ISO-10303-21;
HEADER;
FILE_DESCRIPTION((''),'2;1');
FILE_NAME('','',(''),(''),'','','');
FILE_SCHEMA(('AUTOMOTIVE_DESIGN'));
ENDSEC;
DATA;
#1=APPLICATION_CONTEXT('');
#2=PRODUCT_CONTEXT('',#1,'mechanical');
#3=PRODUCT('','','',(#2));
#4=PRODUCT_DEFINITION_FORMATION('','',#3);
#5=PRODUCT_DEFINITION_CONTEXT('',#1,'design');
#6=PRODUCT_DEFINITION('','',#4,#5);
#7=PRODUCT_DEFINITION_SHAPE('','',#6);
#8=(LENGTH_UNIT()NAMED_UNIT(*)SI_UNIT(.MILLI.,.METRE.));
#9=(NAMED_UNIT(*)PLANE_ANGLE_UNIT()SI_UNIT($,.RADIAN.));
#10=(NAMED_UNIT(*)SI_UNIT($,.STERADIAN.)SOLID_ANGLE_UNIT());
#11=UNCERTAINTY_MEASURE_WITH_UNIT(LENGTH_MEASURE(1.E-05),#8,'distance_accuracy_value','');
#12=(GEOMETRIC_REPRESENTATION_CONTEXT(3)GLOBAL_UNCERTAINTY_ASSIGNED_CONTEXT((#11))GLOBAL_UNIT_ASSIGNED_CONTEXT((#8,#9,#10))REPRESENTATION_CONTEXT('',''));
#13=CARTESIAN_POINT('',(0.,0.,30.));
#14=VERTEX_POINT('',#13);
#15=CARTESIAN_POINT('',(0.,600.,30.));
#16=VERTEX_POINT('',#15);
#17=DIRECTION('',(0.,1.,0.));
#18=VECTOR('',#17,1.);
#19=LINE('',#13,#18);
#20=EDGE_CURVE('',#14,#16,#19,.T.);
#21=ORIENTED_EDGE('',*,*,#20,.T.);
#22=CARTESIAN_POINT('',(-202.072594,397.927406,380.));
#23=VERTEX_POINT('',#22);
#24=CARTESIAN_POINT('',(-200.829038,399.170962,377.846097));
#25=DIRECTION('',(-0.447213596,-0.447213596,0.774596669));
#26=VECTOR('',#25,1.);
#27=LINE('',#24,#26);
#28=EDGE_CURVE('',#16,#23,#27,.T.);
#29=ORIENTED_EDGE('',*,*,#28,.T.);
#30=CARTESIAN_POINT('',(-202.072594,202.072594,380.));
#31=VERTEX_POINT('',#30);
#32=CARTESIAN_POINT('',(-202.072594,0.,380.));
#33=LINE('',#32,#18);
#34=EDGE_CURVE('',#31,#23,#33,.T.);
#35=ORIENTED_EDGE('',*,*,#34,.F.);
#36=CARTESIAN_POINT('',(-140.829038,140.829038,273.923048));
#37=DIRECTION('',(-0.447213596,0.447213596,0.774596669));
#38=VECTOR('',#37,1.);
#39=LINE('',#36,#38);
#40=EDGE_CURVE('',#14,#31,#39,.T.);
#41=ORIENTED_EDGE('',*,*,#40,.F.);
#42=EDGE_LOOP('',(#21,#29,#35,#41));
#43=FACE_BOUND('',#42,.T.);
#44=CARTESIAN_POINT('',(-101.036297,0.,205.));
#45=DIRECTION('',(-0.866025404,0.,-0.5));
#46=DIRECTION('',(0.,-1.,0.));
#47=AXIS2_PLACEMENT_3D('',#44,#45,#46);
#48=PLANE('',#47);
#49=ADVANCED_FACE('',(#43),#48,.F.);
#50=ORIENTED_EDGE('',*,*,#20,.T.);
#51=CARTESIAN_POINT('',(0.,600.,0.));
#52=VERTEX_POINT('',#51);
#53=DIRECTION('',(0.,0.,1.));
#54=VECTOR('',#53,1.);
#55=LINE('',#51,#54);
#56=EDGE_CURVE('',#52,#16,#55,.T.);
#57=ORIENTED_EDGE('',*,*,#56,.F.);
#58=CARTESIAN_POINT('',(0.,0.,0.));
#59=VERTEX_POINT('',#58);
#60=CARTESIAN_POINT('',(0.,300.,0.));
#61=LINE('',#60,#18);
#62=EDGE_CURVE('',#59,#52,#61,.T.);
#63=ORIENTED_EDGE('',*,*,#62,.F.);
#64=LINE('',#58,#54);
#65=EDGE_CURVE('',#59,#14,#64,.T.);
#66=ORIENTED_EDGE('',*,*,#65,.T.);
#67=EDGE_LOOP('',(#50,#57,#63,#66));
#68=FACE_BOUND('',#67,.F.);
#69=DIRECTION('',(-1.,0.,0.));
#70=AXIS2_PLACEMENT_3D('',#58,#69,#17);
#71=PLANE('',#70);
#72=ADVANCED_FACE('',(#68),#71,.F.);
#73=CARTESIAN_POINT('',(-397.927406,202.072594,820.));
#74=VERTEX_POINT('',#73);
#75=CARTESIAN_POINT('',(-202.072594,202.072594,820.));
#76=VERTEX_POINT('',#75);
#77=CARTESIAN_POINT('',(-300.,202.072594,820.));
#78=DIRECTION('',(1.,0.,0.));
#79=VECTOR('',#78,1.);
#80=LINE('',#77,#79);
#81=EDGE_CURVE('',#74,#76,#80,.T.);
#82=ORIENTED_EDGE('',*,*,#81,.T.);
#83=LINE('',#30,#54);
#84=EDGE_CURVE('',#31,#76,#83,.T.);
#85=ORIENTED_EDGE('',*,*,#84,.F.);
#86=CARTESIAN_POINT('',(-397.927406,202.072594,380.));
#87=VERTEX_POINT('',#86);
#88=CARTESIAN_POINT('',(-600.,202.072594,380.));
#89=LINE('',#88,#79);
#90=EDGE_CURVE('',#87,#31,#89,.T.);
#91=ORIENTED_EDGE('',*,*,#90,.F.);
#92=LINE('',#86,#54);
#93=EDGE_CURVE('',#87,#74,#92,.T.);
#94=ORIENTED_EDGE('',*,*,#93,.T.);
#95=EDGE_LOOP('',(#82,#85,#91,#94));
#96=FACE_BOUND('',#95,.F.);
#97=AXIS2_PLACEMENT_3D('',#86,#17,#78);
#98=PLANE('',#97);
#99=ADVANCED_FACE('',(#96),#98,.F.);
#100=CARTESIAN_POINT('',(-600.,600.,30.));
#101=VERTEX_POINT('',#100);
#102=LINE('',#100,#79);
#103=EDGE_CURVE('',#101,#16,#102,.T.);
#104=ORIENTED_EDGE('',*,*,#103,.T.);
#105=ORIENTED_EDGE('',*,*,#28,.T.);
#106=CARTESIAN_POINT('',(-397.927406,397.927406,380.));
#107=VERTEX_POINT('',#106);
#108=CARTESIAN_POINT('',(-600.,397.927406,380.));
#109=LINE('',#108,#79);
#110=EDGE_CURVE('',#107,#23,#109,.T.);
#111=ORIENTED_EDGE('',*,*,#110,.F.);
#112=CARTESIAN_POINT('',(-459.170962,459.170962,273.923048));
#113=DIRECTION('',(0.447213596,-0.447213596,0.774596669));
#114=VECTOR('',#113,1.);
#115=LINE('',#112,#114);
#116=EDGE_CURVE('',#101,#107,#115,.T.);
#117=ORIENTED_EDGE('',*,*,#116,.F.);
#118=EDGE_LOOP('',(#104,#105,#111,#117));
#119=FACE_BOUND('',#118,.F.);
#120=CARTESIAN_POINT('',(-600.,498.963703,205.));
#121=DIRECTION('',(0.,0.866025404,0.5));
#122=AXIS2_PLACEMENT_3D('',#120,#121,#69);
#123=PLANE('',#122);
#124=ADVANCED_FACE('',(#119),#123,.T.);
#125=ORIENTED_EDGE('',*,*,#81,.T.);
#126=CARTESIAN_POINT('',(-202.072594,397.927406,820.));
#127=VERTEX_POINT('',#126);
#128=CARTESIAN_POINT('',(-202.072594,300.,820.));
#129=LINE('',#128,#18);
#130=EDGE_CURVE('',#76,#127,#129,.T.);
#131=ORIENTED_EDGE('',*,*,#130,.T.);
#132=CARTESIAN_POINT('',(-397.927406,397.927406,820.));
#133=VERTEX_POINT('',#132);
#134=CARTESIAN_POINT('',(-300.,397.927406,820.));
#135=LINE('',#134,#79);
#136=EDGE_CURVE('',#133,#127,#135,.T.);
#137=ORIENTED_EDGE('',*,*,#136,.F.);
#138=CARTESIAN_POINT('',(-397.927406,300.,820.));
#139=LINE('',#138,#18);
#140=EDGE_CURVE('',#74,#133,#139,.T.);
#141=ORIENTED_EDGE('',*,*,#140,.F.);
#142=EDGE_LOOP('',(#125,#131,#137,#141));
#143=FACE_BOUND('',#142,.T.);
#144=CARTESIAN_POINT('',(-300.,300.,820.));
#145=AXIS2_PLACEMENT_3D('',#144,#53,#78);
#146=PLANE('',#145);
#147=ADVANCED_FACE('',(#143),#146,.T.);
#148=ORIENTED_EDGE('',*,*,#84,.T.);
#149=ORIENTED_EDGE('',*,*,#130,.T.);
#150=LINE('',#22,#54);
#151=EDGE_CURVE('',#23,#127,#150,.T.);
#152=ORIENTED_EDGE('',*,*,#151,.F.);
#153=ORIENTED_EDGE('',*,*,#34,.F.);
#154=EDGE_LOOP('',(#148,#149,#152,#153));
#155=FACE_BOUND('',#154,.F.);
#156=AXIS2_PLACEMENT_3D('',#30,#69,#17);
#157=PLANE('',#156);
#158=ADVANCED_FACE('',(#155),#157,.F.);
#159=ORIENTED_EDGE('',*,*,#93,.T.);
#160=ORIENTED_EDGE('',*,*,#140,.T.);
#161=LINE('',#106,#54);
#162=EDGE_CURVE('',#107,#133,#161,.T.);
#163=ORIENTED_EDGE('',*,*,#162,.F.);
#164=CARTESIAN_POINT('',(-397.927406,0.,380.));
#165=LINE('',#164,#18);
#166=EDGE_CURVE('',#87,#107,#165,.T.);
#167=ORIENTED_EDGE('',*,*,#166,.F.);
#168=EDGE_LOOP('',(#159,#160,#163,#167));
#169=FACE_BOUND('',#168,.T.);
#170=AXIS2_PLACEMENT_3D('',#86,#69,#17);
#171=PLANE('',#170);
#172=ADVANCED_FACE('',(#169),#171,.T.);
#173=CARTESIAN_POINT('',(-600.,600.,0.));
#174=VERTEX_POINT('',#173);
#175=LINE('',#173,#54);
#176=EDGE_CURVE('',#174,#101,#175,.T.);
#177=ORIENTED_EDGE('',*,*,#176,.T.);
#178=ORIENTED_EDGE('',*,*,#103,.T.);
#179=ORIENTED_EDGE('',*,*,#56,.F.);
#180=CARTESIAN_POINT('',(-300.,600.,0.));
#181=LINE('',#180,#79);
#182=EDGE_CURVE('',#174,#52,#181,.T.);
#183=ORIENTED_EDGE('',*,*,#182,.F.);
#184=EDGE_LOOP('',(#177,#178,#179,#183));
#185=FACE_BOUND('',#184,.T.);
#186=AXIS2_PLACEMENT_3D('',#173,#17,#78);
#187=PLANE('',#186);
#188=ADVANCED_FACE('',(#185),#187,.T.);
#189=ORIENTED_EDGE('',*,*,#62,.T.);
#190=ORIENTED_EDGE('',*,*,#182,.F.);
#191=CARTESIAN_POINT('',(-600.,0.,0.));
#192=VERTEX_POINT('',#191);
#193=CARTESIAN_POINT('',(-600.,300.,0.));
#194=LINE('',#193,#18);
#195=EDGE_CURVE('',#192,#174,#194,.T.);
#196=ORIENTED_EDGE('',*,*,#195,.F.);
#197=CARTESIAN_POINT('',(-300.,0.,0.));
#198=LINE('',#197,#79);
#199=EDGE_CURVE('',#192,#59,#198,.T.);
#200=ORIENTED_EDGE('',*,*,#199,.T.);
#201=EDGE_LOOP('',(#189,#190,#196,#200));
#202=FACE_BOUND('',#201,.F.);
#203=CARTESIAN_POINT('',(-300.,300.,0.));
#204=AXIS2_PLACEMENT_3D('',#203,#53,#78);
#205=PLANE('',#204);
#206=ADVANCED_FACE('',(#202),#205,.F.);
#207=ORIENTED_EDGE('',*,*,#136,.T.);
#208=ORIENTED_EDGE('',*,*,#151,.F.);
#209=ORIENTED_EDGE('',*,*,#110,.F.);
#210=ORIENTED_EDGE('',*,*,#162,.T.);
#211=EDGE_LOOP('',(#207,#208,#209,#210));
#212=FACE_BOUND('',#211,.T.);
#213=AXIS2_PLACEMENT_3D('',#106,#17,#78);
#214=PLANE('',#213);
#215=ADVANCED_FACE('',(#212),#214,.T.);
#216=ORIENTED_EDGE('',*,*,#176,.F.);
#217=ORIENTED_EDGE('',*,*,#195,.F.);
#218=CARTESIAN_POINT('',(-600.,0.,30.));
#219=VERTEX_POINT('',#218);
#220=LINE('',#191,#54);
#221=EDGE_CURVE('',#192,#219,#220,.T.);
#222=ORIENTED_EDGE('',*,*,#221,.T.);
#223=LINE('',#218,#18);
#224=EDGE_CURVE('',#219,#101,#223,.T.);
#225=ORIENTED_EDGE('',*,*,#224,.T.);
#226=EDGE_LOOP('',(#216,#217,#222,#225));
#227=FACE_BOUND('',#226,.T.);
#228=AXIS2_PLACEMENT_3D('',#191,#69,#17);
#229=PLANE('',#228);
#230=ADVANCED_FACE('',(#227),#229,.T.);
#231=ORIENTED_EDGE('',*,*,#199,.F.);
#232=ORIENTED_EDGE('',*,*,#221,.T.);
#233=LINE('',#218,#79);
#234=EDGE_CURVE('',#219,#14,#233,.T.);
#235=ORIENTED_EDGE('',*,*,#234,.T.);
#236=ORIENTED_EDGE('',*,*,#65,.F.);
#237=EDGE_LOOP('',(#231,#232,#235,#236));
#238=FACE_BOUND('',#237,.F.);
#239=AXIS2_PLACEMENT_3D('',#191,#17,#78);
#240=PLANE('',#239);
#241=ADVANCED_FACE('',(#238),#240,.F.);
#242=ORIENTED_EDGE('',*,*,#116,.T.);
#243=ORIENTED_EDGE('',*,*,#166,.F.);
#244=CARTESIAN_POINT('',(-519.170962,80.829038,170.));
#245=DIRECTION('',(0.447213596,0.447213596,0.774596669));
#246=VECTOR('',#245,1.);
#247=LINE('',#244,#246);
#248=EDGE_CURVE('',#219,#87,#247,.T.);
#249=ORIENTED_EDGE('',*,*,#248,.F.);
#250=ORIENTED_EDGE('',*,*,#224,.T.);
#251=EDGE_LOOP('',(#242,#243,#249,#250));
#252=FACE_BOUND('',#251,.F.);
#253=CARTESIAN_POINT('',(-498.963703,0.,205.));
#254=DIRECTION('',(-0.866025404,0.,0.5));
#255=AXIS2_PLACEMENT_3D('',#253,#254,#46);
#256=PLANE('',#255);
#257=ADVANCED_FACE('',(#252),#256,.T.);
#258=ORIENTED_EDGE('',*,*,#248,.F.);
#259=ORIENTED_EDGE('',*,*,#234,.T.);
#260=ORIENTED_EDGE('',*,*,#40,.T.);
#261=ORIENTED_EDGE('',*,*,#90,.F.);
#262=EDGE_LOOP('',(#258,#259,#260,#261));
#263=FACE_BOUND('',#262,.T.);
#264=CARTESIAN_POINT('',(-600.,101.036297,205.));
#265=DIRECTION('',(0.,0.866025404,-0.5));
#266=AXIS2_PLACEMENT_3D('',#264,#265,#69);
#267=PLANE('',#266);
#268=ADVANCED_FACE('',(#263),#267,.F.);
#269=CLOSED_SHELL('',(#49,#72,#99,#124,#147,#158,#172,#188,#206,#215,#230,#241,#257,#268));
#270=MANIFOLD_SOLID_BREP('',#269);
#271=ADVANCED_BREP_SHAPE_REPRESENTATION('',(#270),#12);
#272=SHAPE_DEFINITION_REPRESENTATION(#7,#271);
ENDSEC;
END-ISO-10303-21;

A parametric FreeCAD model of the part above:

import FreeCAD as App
import Part
import Sketcher

V = App.Vector
Q = App.Units.Quantity


def edges_at(feature, points):
    """Names of the edges that pass closest to the given points."""
    edges = feature.Shape.Edges
    near = lambda p: min(range(len(edges)), key=lambda i: edges[i].distToShape(Part.Vertex(*p))[0])
    return sorted({f"Edge{near(p) + 1}" for p in points})


def add_polygon(sketch, points):
    """Adds a closed chain of lines whose ends are joined by coincident constraints."""
    first, n = sketch.GeometryCount, len(points)
    for a, b in zip(points, points[1:] + points[:1]):
        sketch.addGeometry(Part.LineSegment(App.Vector(*a, 0), App.Vector(*b, 0)), False)
    for i in range(n):
        sketch.addConstraint(Sketcher.Constraint("Coincident", first + i, 2, first + (i + 1) % n, 1))

doc = App.newDocument("Part")
params = doc.addObject("Spreadsheet::Sheet", "Params")
for row, (alias, value) in enumerate([
    ("sketch1_width", "600 mm"),
    ("pad1_length", "380 mm"),
    ("chamfer_size", "350 mm"),
    ("chamfer_size2", "202.072594 mm"),
    ("pad2_length", "440 mm"),
], start=1):
    params.set(f"A{row}", alias)
    params.set(f"B{row}", "=" + value)
    params.setAlias(f"B{row}", alias)

body = doc.addObject("PartDesign::Body", "Body")

# Sketch on XY plane
sketch1 = body.newObject("Sketcher::SketchObject", "Sketch")
sketch1.AttachmentSupport = (doc.getObject("XY_Plane"), [""])
sketch1.MapMode = "FlatFace"
add_polygon(sketch1, [(-600, 600), (-600, 0), (0, 0), (0, 600)])  # lines 0-3
sketch1.addConstraint(Sketcher.Constraint("Vertical", 0))
sketch1.addConstraint(Sketcher.Constraint("Horizontal", 1))
sketch1.addConstraint(Sketcher.Constraint("Vertical", 2))
sketch1.addConstraint(Sketcher.Constraint("Horizontal", 3))
sketch1.addConstraint(Sketcher.Constraint("Coincident", 1, 2, -1, 1))
sketch1.addConstraint(Sketcher.Constraint("Equal", 3, 0))
sketch1.addConstraint(Sketcher.Constraint("DistanceX", 1, 1, 1, 2, Q("600 mm")))
sketch1.setExpression("Constraints[10]", "Params.sketch1_width")
pad1 = body.newObject("PartDesign::Pad", "Pad")
pad1.Profile = sketch1
pad1.setExpression("Length", "Params.pad1_length")
doc.recompute()

chamfer = body.newObject("PartDesign::Chamfer", "Chamfer")
chamfer.Base = (pad1, edges_at(pad1, [
    (-300, 0, 380),
    (0, 300, 380),
    (-300, 600, 380),
    (-600, 300, 380),
]))
chamfer.ChamferType = "Two distances"
chamfer.setExpression("Size", "Params.chamfer_size")
chamfer.setExpression("Size2", "Params.chamfer_size2")

# Sketch on XY plane
sketch2 = body.newObject("Sketcher::SketchObject", "Sketch001")
sketch2.AttachmentSupport = (doc.getObject("XY_Plane"), [""])
sketch2.MapMode = "FlatFace"
sketch2.AttachmentOffset = App.Placement(V(0, 0, 380), App.Rotation())
add_polygon(sketch2, [(-398, 398), (-398, 202), (-202, 202), (-202, 398)])  # lines 0-3
sketch2.addConstraint(Sketcher.Constraint("Vertical", 0))
sketch2.addConstraint(Sketcher.Constraint("Horizontal", 1))
sketch2.addConstraint(Sketcher.Constraint("Vertical", 2))
sketch2.addConstraint(Sketcher.Constraint("Horizontal", 3))
sketch2.addConstraint(Sketcher.Constraint("Equal", 3, 0))
sketch2.addConstraint(Sketcher.Constraint("DistanceX", 1, 1, 1, 2, Q("195.854812 mm")))
sketch2.addConstraint(Sketcher.Constraint("DistanceX", 0, 2, -1, 1, Q("397.927406 mm")))
sketch2.addConstraint(Sketcher.Constraint("DistanceY", -1, 1, 0, 2, Q("202.072594 mm")))
pad2 = body.newObject("PartDesign::Pad", "Pad001")
pad2.Profile = sketch2
pad2.setExpression("Length", "Params.pad2_length")

doc.recompute()
